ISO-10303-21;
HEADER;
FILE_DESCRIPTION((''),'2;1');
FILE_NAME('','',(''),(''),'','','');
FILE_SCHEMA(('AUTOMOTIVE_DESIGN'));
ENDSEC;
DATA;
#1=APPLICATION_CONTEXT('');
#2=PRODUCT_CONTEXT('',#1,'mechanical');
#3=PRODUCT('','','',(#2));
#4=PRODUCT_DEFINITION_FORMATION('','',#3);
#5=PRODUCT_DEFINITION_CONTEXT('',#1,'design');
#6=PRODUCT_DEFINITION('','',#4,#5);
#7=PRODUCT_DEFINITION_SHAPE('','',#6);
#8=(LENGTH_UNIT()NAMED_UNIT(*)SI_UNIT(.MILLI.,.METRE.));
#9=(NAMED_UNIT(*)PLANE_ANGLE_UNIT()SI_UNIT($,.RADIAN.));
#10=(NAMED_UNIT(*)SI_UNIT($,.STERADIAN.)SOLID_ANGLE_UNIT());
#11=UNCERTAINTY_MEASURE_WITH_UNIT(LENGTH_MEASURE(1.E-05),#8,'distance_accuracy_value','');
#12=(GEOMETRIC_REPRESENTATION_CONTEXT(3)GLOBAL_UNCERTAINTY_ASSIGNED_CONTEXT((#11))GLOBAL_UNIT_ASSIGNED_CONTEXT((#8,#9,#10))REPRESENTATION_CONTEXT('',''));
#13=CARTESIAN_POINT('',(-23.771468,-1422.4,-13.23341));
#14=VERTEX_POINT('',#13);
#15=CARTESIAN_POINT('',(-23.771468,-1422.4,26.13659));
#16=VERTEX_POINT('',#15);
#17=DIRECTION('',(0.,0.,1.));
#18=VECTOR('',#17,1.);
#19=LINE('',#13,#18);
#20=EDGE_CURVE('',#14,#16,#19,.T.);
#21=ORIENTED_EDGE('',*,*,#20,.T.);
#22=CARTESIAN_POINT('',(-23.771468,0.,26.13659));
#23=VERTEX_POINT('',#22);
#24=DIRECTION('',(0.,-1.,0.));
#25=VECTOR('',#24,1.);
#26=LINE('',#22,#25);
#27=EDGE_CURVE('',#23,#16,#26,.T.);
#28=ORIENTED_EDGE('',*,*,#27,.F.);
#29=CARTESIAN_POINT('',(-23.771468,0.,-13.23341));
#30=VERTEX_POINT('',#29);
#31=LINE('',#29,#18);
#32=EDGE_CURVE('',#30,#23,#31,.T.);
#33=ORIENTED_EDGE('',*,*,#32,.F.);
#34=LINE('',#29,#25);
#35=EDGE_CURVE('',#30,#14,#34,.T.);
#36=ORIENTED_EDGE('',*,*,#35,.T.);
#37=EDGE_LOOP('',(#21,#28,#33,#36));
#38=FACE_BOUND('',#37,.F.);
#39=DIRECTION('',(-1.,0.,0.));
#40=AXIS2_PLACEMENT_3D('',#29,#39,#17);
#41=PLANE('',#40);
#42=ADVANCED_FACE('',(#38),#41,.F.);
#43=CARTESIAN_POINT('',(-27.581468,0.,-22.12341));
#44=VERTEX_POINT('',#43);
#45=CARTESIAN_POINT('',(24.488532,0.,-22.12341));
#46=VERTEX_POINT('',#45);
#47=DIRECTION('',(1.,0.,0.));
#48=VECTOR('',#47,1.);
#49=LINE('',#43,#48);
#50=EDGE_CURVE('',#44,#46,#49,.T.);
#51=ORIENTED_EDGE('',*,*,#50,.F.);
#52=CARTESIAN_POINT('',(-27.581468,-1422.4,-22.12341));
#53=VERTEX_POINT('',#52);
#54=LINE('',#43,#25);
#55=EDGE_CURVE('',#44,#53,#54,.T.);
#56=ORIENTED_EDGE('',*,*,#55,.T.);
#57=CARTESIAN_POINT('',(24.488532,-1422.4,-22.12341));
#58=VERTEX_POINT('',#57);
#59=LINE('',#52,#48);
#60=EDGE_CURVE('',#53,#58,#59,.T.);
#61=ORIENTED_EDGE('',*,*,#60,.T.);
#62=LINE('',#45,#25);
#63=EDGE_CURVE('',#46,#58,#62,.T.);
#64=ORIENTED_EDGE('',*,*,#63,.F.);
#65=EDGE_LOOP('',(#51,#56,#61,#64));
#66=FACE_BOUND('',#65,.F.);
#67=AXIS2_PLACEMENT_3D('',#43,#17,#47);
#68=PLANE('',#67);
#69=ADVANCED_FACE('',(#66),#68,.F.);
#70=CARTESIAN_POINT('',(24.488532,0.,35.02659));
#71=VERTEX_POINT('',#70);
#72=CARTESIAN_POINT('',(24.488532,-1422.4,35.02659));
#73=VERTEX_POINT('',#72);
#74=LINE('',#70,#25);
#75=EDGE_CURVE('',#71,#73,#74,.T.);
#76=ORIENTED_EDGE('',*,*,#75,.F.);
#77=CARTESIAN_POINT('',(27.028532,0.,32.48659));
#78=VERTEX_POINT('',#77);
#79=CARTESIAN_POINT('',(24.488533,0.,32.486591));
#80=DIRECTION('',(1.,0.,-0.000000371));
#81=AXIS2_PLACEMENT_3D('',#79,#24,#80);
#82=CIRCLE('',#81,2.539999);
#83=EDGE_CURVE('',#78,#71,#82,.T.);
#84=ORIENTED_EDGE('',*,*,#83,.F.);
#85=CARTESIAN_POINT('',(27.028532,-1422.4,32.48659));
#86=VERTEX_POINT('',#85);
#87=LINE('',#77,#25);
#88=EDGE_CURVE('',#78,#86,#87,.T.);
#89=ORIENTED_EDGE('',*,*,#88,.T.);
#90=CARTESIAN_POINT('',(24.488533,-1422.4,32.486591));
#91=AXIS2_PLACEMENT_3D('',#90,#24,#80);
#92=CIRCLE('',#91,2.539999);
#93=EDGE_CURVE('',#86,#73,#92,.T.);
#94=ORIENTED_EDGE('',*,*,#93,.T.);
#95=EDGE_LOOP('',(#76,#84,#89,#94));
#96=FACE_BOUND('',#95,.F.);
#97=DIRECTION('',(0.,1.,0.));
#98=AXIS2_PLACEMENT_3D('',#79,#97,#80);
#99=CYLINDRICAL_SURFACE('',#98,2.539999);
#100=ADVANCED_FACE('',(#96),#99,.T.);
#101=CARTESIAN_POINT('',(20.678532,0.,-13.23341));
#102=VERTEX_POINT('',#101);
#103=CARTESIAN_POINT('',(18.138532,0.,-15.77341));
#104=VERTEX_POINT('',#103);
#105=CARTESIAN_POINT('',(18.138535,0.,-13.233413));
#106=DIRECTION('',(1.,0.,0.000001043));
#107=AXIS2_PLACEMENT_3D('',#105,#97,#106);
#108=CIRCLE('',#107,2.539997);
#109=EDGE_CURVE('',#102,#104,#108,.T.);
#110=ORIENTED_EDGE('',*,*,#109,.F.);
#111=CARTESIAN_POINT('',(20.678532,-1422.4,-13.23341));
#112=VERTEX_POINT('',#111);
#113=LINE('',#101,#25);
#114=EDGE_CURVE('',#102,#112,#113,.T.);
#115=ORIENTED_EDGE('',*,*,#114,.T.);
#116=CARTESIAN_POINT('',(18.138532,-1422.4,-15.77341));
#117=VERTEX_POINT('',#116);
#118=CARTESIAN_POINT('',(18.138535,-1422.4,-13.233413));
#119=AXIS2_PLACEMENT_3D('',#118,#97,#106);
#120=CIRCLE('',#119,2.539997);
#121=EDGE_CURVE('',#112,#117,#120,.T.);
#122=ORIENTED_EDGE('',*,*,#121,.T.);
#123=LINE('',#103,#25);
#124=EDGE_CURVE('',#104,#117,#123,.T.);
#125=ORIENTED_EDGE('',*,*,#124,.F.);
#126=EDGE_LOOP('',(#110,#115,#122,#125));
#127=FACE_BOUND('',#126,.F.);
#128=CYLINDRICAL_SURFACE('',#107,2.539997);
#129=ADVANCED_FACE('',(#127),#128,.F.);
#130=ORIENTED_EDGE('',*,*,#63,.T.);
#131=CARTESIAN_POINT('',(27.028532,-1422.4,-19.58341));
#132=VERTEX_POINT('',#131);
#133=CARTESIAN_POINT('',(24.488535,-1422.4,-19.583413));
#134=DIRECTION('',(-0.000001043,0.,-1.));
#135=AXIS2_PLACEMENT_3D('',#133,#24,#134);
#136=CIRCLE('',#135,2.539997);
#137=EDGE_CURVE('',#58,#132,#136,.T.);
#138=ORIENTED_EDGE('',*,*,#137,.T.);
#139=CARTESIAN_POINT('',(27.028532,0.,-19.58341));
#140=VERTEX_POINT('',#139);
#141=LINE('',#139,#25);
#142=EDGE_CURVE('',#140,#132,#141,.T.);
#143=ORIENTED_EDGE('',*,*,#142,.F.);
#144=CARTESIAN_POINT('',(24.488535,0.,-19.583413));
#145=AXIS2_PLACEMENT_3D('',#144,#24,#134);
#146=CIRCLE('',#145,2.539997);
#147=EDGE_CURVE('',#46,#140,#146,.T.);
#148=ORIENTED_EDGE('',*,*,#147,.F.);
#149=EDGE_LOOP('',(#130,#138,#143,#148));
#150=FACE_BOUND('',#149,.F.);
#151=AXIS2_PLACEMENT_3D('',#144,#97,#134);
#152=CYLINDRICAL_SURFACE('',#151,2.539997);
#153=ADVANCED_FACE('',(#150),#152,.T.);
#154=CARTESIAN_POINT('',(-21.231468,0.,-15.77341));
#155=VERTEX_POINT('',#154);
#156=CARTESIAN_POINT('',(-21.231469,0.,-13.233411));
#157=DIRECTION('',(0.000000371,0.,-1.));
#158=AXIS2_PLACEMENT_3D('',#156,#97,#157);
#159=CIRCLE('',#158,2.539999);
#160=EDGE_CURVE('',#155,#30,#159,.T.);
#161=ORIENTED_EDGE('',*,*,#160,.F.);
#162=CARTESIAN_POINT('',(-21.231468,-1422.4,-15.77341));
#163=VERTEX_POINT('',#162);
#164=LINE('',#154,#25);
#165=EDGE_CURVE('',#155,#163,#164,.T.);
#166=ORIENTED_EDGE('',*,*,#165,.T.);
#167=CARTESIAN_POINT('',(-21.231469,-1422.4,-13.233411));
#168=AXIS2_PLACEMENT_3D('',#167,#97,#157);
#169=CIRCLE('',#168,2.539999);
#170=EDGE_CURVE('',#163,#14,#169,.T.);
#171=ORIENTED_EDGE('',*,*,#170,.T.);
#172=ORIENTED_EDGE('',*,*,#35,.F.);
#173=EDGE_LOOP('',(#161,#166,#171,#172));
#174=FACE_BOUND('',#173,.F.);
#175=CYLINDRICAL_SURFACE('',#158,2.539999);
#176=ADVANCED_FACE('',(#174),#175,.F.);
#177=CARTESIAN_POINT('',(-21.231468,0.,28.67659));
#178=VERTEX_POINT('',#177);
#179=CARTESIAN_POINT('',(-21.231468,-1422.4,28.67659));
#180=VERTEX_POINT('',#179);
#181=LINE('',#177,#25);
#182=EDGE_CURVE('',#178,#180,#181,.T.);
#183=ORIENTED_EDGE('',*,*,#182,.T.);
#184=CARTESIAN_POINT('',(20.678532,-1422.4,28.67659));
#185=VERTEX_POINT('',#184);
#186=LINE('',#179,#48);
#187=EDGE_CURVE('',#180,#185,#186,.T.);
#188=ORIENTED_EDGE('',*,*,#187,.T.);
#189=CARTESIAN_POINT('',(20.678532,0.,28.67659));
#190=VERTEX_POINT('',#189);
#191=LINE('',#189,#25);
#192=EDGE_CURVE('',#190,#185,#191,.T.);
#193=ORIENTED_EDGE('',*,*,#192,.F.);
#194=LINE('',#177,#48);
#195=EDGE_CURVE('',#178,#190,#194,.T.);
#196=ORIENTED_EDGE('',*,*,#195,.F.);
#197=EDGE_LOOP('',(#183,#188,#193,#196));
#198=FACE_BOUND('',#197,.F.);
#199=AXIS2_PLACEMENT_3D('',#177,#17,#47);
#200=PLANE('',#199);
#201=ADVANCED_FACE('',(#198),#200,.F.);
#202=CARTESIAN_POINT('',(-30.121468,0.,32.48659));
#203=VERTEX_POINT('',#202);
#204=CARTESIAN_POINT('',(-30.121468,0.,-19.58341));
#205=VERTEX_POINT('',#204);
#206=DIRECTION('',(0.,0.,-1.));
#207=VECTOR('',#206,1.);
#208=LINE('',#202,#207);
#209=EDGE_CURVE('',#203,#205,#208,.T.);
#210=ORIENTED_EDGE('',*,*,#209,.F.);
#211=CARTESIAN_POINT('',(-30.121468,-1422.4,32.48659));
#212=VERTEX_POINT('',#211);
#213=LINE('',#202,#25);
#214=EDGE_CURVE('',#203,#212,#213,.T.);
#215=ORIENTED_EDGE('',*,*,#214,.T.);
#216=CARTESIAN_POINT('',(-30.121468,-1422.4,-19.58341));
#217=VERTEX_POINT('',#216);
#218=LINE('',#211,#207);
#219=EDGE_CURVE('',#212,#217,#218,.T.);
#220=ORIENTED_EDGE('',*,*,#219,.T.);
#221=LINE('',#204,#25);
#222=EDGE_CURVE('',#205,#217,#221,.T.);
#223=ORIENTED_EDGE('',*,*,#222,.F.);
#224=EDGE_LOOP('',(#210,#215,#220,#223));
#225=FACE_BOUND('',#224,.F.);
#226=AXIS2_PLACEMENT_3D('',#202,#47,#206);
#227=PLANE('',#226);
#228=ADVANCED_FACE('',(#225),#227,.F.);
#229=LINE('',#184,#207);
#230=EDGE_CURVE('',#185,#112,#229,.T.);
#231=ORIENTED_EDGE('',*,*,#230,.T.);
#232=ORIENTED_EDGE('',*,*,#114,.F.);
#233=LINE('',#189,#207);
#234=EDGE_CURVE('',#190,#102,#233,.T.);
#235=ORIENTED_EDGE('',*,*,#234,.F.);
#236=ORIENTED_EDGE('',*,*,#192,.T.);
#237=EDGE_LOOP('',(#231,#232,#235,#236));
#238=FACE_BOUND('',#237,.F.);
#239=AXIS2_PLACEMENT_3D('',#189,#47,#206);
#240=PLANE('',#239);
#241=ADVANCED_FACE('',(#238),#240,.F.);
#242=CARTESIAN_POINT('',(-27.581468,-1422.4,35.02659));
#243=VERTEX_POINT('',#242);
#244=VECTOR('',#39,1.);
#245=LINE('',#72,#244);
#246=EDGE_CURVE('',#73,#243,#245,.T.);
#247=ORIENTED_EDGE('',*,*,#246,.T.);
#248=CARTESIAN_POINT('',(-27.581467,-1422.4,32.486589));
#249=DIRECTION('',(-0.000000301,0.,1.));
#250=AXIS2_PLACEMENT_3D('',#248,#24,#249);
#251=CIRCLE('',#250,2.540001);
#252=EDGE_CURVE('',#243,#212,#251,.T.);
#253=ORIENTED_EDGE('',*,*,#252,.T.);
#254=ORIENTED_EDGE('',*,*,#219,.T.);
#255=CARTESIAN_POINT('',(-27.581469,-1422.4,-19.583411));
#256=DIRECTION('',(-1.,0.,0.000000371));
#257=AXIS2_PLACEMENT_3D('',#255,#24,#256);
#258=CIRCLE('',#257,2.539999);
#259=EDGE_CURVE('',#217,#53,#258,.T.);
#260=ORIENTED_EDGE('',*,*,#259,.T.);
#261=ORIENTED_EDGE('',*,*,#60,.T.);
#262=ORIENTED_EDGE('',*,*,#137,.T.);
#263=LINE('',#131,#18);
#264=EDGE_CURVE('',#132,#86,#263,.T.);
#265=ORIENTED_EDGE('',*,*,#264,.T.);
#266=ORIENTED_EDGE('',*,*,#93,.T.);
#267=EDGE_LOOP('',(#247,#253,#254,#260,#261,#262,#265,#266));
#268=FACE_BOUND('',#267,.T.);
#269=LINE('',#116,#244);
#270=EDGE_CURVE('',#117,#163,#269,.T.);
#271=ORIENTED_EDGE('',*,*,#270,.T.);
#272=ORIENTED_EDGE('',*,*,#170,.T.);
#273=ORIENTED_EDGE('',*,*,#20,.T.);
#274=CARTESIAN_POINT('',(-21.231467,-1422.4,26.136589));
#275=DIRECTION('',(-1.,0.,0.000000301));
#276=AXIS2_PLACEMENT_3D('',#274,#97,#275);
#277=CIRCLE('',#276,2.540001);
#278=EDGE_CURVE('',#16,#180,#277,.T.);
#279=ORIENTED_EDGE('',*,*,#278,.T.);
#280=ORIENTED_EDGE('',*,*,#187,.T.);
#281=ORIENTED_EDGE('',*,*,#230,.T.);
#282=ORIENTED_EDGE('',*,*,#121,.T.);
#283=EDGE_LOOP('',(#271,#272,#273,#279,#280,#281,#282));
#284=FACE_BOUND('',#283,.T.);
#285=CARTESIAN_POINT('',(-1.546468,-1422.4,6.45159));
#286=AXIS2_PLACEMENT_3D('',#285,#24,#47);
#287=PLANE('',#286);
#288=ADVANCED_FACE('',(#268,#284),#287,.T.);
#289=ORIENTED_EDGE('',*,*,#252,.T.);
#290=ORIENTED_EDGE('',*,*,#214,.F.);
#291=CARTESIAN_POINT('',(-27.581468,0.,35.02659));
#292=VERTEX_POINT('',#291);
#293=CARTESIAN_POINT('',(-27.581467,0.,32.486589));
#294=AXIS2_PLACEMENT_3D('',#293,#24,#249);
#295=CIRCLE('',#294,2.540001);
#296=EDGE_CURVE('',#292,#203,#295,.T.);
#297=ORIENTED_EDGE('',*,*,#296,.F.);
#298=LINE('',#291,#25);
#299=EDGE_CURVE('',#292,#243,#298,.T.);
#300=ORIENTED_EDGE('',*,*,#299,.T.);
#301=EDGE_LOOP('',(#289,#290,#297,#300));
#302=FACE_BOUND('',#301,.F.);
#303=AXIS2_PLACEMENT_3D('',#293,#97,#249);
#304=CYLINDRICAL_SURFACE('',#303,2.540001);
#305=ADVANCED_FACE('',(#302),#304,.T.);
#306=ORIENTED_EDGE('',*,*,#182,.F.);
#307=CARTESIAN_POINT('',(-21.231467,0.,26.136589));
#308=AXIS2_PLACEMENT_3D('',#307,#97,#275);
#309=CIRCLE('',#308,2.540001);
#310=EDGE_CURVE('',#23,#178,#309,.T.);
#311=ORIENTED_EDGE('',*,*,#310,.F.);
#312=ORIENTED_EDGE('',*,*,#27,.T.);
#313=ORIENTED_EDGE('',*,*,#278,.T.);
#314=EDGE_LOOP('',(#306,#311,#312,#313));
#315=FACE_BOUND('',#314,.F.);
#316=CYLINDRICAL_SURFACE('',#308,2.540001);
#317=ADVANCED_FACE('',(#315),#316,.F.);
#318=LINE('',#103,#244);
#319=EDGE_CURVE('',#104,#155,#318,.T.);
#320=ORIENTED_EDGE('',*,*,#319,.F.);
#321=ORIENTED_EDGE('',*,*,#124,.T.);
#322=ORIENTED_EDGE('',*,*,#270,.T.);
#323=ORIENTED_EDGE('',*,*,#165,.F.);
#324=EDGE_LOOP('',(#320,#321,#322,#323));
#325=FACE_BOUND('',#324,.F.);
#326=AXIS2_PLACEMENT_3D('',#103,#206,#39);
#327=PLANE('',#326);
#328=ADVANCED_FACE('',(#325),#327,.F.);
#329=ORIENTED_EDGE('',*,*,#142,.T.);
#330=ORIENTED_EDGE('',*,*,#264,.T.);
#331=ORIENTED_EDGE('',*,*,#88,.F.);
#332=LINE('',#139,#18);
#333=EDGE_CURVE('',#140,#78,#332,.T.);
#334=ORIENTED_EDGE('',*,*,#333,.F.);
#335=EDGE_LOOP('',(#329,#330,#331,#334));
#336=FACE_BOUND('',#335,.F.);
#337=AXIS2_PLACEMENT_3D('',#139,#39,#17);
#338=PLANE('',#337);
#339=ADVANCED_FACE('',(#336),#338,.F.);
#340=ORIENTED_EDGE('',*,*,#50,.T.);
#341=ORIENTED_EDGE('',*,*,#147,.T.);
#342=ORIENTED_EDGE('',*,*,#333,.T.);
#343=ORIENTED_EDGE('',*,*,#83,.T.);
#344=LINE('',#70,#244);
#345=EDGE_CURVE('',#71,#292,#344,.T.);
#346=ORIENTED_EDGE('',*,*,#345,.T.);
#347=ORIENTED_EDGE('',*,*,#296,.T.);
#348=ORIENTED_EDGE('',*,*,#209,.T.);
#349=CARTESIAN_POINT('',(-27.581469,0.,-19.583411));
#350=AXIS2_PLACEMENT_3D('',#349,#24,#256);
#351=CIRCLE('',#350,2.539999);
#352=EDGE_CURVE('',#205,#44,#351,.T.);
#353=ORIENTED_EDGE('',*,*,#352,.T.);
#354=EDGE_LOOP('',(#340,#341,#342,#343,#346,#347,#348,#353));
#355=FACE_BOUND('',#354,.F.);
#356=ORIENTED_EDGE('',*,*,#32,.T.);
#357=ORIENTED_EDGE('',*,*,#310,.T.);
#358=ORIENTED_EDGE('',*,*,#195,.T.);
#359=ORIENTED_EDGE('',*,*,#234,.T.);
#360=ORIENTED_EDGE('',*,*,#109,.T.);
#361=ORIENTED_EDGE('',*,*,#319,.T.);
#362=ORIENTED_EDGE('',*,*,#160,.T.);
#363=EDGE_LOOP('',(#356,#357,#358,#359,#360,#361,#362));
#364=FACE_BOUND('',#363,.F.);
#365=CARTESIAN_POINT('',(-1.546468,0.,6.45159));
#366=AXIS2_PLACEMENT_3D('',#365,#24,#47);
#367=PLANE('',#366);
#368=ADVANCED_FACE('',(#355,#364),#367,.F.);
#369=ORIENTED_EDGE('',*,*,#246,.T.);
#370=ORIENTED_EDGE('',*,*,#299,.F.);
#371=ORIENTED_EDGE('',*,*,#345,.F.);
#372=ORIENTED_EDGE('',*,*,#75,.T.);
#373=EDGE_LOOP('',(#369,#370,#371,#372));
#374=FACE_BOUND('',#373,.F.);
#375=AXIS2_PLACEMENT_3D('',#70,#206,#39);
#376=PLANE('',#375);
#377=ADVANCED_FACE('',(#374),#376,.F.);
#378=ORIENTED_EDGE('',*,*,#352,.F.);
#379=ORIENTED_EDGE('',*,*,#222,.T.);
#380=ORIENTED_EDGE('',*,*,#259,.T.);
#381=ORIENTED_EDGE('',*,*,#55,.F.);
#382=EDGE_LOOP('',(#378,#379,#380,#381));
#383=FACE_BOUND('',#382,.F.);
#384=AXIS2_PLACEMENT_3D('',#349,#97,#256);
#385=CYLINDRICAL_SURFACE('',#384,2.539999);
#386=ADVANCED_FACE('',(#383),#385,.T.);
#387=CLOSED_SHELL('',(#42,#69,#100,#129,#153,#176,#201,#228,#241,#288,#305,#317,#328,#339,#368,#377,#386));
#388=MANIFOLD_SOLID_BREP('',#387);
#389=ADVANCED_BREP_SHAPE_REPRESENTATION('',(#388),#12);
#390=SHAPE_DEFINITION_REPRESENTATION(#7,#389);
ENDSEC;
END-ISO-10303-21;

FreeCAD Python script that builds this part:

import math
import FreeCAD as App
import Part
import Sketcher

V = App.Vector
Q = App.Units.Quantity

doc = App.newDocument("Part")
body = doc.addObject("PartDesign::Body", "Body")

# Sketch on XZ plane
sketch1 = doc.addObject("Sketcher::SketchObject", "Sketch")
body.addObject(sketch1)
sketch1.AttachmentSupport = (doc.XZ_Plane, [""])
sketch1.MapMode = "FlatFace"
sketch1.addGeometry([
    Part.LineSegment(V(24.5, 35, 0), V(-27.6, 35, 0)),  # 0
    Part.ArcOfCircle(Part.Circle(V(-27.6, 32.5, 0), V(0, 0, 1), 2.5), math.radians(90), math.radians(180)),  # 1
    Part.LineSegment(V(-30.1, 32.5, 0), V(-30.1, -19.6, 0)),  # 2
    Part.ArcOfCircle(Part.Circle(V(-27.6, -19.6, 0), V(0, 0, 1), 2.5), math.radians(180), math.radians(270)),  # 3
    Part.LineSegment(V(-27.6, -22.1, 0), V(24.5, -22.1, 0)),  # 4
    Part.ArcOfCircle(Part.Circle(V(24.5, -19.6, 0), V(0, 0, 1), 2.5), math.radians(-90), math.radians(0)),  # 5
    Part.LineSegment(V(27, -19.6, 0), V(27, 32.5, 0)),  # 6
    Part.ArcOfCircle(Part.Circle(V(24.5, 32.5, 0), V(0, 0, 1), 2.5), math.radians(0), math.radians(90)),  # 7
    Part.LineSegment(V(-23.8, -13.2, 0), V(-23.8, 26.1, 0)),  # 8
    Part.ArcOfCircle(Part.Circle(V(-21.2, 26.1, 0), V(0, 0, 1), 2.5), math.radians(90), math.radians(180)),  # 9
    Part.LineSegment(V(-21.2, 28.7, 0), V(20.7, 28.7, 0)),  # 10
    Part.LineSegment(V(20.7, 28.7, 0), V(20.7, -13.2, 0)),  # 11
    Part.ArcOfCircle(Part.Circle(V(18.1, -13.2, 0), V(0, 0, 1), 2.5), math.radians(-90), math.radians(0)),  # 12
    Part.LineSegment(V(18.1, -15.8, 0), V(-21.2, -15.8, 0)),  # 13
    Part.ArcOfCircle(Part.Circle(V(-21.2, -13.2, 0), V(0, 0, 1), 2.5), math.radians(180), math.radians(270)),  # 14
], False)
sketch1.addConstraint([
    Sketcher.Constraint("Tangent", 0, 2, 1, 1),
    Sketcher.Constraint("Tangent", 1, 2, 2, 1),
    Sketcher.Constraint("Tangent", 2, 2, 3, 1),
    Sketcher.Constraint("Tangent", 3, 2, 4, 1),
    Sketcher.Constraint("Tangent", 4, 2, 5, 1),
    Sketcher.Constraint("Tangent", 5, 2, 6, 1),
    Sketcher.Constraint("Tangent", 6, 2, 7, 1),
    Sketcher.Constraint("Tangent", 7, 2, 0, 1),
    Sketcher.Constraint("Tangent", 8, 2, 9, 2),
    Sketcher.Constraint("Tangent", 9, 1, 10, 1),
    Sketcher.Constraint("Coincident", 10, 2, 11, 1),
    Sketcher.Constraint("Tangent", 11, 2, 12, 2),
    Sketcher.Constraint("Tangent", 12, 1, 13, 1),
    Sketcher.Constraint("Tangent", 13, 2, 14, 2),
    Sketcher.Constraint("Tangent", 14, 1, 8, 1),
    Sketcher.Constraint("Horizontal", 0),
    Sketcher.Constraint("Vertical", 2),
    Sketcher.Constraint("Horizontal", 4),
    Sketcher.Constraint("Vertical", 6),
    Sketcher.Constraint("Vertical", 8),
    Sketcher.Constraint("Horizontal", 10),
    Sketcher.Constraint("Vertical", 11),
    Sketcher.Constraint("Horizontal", 13),
    Sketcher.Constraint("Equal", 1, 3),
    Sketcher.Constraint("Equal", 3, 5),
    Sketcher.Constraint("Equal", 5, 7),
    Sketcher.Constraint("Equal", 7, 9),
    Sketcher.Constraint("Equal", 7, 12),
    Sketcher.Constraint("Equal", 12, 14),
    Sketcher.Constraint("Equal", 4, 2),
    Sketcher.Constraint("Equal", 13, 8),
    Sketcher.Constraint("Radius", 1, Q("0.1 in")),
    Sketcher.Constraint("DistanceX", 0, 2, 0, 1, Q("2.05 in")),
    Sketcher.Constraint("DistanceX", 10, 1, 10, 2, Q("1.65 in")),
    Sketcher.Constraint("DistanceY", 3, 3, 9, 3, Q("1.8 in")),
    Sketcher.Constraint("DistanceX", 9, 3, 7, 3, Q("1.8 in")),
    Sketcher.Constraint("DistanceY", -1, 1, 1, 3, 32.486589),
    Sketcher.Constraint("DistanceX", 3, 3, -1, 1, 27.581469),
])
pad1 = doc.addObject("PartDesign::Pad", "Pad")
body.addObject(pad1)
pad1.Profile = sketch1
pad1.Length = Q("56 in")

doc.recompute()
